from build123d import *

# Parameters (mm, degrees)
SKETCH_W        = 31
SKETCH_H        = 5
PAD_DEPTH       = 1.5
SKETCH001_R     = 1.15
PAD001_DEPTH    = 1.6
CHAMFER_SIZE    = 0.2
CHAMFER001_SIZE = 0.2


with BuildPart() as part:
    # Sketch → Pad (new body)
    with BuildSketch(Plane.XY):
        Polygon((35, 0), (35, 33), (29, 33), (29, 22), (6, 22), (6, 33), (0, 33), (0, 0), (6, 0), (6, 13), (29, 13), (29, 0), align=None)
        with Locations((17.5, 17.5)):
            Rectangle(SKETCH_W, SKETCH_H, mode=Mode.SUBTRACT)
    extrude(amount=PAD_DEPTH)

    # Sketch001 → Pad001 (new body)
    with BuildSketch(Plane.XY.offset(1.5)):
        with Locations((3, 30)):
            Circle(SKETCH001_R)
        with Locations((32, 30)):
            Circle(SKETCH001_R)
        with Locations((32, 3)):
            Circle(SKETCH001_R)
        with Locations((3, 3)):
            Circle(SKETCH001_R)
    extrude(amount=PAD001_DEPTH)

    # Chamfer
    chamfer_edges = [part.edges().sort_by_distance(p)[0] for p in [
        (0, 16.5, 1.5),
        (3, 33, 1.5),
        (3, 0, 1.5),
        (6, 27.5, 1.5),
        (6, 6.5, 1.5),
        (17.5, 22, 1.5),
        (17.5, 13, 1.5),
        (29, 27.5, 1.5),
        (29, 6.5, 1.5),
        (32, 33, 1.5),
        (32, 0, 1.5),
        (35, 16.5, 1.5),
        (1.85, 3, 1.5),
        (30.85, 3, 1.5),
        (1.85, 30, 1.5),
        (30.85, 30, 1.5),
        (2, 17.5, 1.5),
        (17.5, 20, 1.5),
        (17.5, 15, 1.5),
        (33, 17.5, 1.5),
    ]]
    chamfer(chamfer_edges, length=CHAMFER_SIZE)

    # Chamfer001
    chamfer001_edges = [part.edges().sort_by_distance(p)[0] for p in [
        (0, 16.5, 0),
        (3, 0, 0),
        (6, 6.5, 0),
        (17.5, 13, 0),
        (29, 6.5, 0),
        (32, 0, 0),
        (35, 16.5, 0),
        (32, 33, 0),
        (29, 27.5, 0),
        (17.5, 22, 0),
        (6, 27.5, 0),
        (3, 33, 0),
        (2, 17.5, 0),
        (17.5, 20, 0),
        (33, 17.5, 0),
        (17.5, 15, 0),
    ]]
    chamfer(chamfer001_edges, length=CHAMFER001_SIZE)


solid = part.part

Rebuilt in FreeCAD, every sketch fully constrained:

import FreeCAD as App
import Part
import Sketcher


def edges_at(feature, points):
    """Names of the edges that pass closest to the given points."""
    edges = feature.Shape.Edges
    near = lambda p: min(range(len(edges)), key=lambda i: edges[i].distToShape(Part.Vertex(*p))[0])
    return sorted({f"Edge{near(p) + 1}" for p in points})


def add_polygon(sketch, points):
    """Adds a closed chain of lines whose ends are joined by coincident constraints."""
    first, n = sketch.GeometryCount, len(points)
    for a, b in zip(points, points[1:] + points[:1]):
        sketch.addGeometry(Part.LineSegment(App.Vector(*a, 0), App.Vector(*b, 0)), False)
    for i in range(n):
        sketch.addConstraint(Sketcher.Constraint("Coincident", first + i, 2, first + (i + 1) % n, 1))

doc = App.newDocument("Part")
params = doc.addObject("Spreadsheet::Sheet", "Params")
for row, (alias, value) in enumerate([
    ("sketch1_width", "6 mm"),
    ("sketch1_width2", "23 mm"),
    ("sketch1_width3", "31 mm"),
    ("sketch1_height", "33 mm"),
    ("sketch1_height2", "11 mm"),
    ("pad1_length", "1.5 mm"),
    ("sketch2_diameter", "2.3 mm"),
    ("pad2_length", "1.6 mm"),
    ("chamfer_size", "0.2 mm"),
    ("chamfer2_size", "0.2 mm"),
], start=1):
    params.set(f"A{row}", alias)
    params.set(f"B{row}", "=" + value)
    params.setAlias(f"B{row}", alias)

body = doc.addObject("PartDesign::Body", "Body")

sketch1 = body.newObject("Sketcher::SketchObject", "Sketch")
sketch1.AttachmentSupport = (doc.getObject("XY_Plane"), [""])
sketch1.MapMode = "FlatFace"
add_polygon(sketch1, [(35, 0), (35, 33), (29, 33), (29, 22), (6, 22), (6, 33), (0, 33), (0, 0), (6, 0), (6, 13), (29, 13), (29, 0)])
add_polygon(sketch1, [(33, 15), (2, 15), (2, 20), (33, 20)])
sketch1.addConstraint(Sketcher.Constraint("Vertical", 0))
sketch1.addConstraint(Sketcher.Constraint("Horizontal", 1))
sketch1.addConstraint(Sketcher.Constraint("Vertical", 2))
sketch1.addConstraint(Sketcher.Constraint("Horizontal", 3))
sketch1.addConstraint(Sketcher.Constraint("Vertical", 4))
sketch1.addConstraint(Sketcher.Constraint("Horizontal", 5))
sketch1.addConstraint(Sketcher.Constraint("Vertical", 6))
sketch1.addConstraint(Sketcher.Constraint("Horizontal", 7))
sketch1.addConstraint(Sketcher.Constraint("Vertical", 8))
sketch1.addConstraint(Sketcher.Constraint("Horizontal", 9))
sketch1.addConstraint(Sketcher.Constraint("Vertical", 10))
sketch1.addConstraint(Sketcher.Constraint("Horizontal", 11))
sketch1.addConstraint(Sketcher.Constraint("Horizontal", 12))
sketch1.addConstraint(Sketcher.Constraint("Vertical", 13))
sketch1.addConstraint(Sketcher.Constraint("Horizontal", 14))
sketch1.addConstraint(Sketcher.Constraint("Vertical", 15))
sketch1.addConstraint(Sketcher.Constraint("Coincident", 6, 2, -1, 1))
sketch1.addConstraint(Sketcher.Constraint("PointOnObject", 10, 2, -1))
sketch1.addConstraint(Sketcher.Constraint("Horizontal", 1, 2, 4, 2))
sketch1.addConstraint(Sketcher.Constraint("Vertical", 4, 2, 7, 2))
sketch1.addConstraint(Sketcher.Constraint("Vertical", 2, 2, 9, 2))
sketch1.addConstraint(Sketcher.Constraint("Equal", 1, 5))
sketch1.addConstraint(Sketcher.Constraint("DistanceX", 1, 2, 1, 1, 6.0))
sketch1.addConstraint(Sketcher.Constraint("DistanceX", 3, 2, 3, 1, 23.0))
sketch1.addConstraint(Sketcher.Constraint("DistanceX", 12, 2, 12, 1, 31.0))
sketch1.addConstraint(Sketcher.Constraint("DistanceY", 0, 1, 0, 2, 33.0))
sketch1.addConstraint(Sketcher.Constraint("DistanceY", 2, 2, 2, 1, 11.0))
sketch1.addConstraint(Sketcher.Constraint("DistanceY", 8, 1, 8, 2, 13.0))
sketch1.addConstraint(Sketcher.Constraint("DistanceY", 13, 1, 13, 2, 5.0))
sketch1.addConstraint(Sketcher.Constraint("DistanceX", -1, 1, 12, 2, 2.0))
sketch1.addConstraint(Sketcher.Constraint("DistanceY", -1, 1, 12, 2, 15.0))
sketch1.setExpression("Constraints[38]", "Params.sketch1_width")
sketch1.setExpression("Constraints[39]", "Params.sketch1_width2")
sketch1.setExpression("Constraints[40]", "Params.sketch1_width3")
sketch1.setExpression("Constraints[41]", "Params.sketch1_height")
sketch1.setExpression("Constraints[42]", "Params.sketch1_height2")
pad1 = body.newObject("PartDesign::Pad", "Pad")
pad1.Profile = sketch1
pad1.setExpression("Length", "Params.pad1_length")

sketch2 = body.newObject("Sketcher::SketchObject", "Sketch001")
sketch2.AttachmentSupport = (doc.getObject("XY_Plane"), [""])
sketch2.MapMode = "FlatFace"
sketch2.AttachmentOffset = App.Placement(App.Vector(0, 0, 1.5), App.Rotation())
sketch2.addGeometry(Part.Circle(App.Vector(3, 30, 0), App.Vector(0, 0, 1), 1.15), False)
sketch2.addGeometry(Part.Circle(App.Vector(32, 30, 0), App.Vector(0, 0, 1), 1.15), False)
sketch2.addGeometry(Part.Circle(App.Vector(32, 3, 0), App.Vector(0, 0, 1), 1.15), False)
sketch2.addGeometry(Part.Circle(App.Vector(3, 3, 0), App.Vector(0, 0, 1), 1.15), False)
sketch2.addConstraint(Sketcher.Constraint("Equal", 0, 1))
sketch2.addConstraint(Sketcher.Constraint("Equal", 1, 2))
sketch2.addConstraint(Sketcher.Constraint("Equal", 2, 3))
sketch2.addConstraint(Sketcher.Constraint("Horizontal", 0, 3, 1, 3))
sketch2.addConstraint(Sketcher.Constraint("Horizontal", 2, 3, 3, 3))
sketch2.addConstraint(Sketcher.Constraint("Vertical", 1, 3, 2, 3))
sketch2.addConstraint(Sketcher.Constraint("Vertical", 0, 3, 3, 3))
sketch2.addConstraint(Sketcher.Constraint("Diameter", 0, 2.3))
sketch2.addConstraint(Sketcher.Constraint("DistanceX", -1, 1, 0, 3, 3.0))
sketch2.addConstraint(Sketcher.Constraint("DistanceY", -1, 1, 0, 3, 30.0))
sketch2.addConstraint(Sketcher.Constraint("DistanceX", -1, 1, 1, 3, 32.0))
sketch2.addConstraint(Sketcher.Constraint("DistanceY", -1, 1, 2, 3, 3.0))
sketch2.setExpression("Constraints[7]", "Params.sketch2_diameter")
pad2 = body.newObject("PartDesign::Pad", "Pad001")
pad2.Profile = sketch2
pad2.setExpression("Length", "Params.pad2_length")
doc.recompute()

chamfer = body.newObject("PartDesign::Chamfer", "Chamfer")
chamfer.Base = (pad2, edges_at(pad2, [
    (0, 16.5, 1.5),
    (3, 33, 1.5),
    (3, 0, 1.5),
    (6, 27.5, 1.5),
    (6, 6.5, 1.5),
    (17.5, 22, 1.5),
    (17.5, 13, 1.5),
    (29, 27.5, 1.5),
    (29, 6.5, 1.5),
    (32, 33, 1.5),
    (32, 0, 1.5),
    (35, 16.5, 1.5),
    (1.85, 3, 1.5),
    (30.85, 3, 1.5),
    (1.85, 30, 1.5),
    (30.85, 30, 1.5),
    (2, 17.5, 1.5),
    (17.5, 20, 1.5),
    (17.5, 15, 1.5),
    (33, 17.5, 1.5),
]))
chamfer.setExpression("Size", "Params.chamfer_size")
doc.recompute()

chamfer2 = body.newObject("PartDesign::Chamfer", "Chamfer001")
chamfer2.Base = (chamfer, edges_at(chamfer, [
    (0, 16.5, 0),
    (3, 0, 0),
    (6, 6.5, 0),
    (17.5, 13, 0),
    (29, 6.5, 0),
    (32, 0, 0),
    (35, 16.5, 0),
    (32, 33, 0),
    (29, 27.5, 0),
    (17.5, 22, 0),
    (6, 27.5, 0),
    (3, 33, 0),
    (2, 17.5, 0),
    (17.5, 20, 0),
    (33, 17.5, 0),
    (17.5, 15, 0),
]))
chamfer2.setExpression("Size", "Params.chamfer2_size")

doc.recompute()
